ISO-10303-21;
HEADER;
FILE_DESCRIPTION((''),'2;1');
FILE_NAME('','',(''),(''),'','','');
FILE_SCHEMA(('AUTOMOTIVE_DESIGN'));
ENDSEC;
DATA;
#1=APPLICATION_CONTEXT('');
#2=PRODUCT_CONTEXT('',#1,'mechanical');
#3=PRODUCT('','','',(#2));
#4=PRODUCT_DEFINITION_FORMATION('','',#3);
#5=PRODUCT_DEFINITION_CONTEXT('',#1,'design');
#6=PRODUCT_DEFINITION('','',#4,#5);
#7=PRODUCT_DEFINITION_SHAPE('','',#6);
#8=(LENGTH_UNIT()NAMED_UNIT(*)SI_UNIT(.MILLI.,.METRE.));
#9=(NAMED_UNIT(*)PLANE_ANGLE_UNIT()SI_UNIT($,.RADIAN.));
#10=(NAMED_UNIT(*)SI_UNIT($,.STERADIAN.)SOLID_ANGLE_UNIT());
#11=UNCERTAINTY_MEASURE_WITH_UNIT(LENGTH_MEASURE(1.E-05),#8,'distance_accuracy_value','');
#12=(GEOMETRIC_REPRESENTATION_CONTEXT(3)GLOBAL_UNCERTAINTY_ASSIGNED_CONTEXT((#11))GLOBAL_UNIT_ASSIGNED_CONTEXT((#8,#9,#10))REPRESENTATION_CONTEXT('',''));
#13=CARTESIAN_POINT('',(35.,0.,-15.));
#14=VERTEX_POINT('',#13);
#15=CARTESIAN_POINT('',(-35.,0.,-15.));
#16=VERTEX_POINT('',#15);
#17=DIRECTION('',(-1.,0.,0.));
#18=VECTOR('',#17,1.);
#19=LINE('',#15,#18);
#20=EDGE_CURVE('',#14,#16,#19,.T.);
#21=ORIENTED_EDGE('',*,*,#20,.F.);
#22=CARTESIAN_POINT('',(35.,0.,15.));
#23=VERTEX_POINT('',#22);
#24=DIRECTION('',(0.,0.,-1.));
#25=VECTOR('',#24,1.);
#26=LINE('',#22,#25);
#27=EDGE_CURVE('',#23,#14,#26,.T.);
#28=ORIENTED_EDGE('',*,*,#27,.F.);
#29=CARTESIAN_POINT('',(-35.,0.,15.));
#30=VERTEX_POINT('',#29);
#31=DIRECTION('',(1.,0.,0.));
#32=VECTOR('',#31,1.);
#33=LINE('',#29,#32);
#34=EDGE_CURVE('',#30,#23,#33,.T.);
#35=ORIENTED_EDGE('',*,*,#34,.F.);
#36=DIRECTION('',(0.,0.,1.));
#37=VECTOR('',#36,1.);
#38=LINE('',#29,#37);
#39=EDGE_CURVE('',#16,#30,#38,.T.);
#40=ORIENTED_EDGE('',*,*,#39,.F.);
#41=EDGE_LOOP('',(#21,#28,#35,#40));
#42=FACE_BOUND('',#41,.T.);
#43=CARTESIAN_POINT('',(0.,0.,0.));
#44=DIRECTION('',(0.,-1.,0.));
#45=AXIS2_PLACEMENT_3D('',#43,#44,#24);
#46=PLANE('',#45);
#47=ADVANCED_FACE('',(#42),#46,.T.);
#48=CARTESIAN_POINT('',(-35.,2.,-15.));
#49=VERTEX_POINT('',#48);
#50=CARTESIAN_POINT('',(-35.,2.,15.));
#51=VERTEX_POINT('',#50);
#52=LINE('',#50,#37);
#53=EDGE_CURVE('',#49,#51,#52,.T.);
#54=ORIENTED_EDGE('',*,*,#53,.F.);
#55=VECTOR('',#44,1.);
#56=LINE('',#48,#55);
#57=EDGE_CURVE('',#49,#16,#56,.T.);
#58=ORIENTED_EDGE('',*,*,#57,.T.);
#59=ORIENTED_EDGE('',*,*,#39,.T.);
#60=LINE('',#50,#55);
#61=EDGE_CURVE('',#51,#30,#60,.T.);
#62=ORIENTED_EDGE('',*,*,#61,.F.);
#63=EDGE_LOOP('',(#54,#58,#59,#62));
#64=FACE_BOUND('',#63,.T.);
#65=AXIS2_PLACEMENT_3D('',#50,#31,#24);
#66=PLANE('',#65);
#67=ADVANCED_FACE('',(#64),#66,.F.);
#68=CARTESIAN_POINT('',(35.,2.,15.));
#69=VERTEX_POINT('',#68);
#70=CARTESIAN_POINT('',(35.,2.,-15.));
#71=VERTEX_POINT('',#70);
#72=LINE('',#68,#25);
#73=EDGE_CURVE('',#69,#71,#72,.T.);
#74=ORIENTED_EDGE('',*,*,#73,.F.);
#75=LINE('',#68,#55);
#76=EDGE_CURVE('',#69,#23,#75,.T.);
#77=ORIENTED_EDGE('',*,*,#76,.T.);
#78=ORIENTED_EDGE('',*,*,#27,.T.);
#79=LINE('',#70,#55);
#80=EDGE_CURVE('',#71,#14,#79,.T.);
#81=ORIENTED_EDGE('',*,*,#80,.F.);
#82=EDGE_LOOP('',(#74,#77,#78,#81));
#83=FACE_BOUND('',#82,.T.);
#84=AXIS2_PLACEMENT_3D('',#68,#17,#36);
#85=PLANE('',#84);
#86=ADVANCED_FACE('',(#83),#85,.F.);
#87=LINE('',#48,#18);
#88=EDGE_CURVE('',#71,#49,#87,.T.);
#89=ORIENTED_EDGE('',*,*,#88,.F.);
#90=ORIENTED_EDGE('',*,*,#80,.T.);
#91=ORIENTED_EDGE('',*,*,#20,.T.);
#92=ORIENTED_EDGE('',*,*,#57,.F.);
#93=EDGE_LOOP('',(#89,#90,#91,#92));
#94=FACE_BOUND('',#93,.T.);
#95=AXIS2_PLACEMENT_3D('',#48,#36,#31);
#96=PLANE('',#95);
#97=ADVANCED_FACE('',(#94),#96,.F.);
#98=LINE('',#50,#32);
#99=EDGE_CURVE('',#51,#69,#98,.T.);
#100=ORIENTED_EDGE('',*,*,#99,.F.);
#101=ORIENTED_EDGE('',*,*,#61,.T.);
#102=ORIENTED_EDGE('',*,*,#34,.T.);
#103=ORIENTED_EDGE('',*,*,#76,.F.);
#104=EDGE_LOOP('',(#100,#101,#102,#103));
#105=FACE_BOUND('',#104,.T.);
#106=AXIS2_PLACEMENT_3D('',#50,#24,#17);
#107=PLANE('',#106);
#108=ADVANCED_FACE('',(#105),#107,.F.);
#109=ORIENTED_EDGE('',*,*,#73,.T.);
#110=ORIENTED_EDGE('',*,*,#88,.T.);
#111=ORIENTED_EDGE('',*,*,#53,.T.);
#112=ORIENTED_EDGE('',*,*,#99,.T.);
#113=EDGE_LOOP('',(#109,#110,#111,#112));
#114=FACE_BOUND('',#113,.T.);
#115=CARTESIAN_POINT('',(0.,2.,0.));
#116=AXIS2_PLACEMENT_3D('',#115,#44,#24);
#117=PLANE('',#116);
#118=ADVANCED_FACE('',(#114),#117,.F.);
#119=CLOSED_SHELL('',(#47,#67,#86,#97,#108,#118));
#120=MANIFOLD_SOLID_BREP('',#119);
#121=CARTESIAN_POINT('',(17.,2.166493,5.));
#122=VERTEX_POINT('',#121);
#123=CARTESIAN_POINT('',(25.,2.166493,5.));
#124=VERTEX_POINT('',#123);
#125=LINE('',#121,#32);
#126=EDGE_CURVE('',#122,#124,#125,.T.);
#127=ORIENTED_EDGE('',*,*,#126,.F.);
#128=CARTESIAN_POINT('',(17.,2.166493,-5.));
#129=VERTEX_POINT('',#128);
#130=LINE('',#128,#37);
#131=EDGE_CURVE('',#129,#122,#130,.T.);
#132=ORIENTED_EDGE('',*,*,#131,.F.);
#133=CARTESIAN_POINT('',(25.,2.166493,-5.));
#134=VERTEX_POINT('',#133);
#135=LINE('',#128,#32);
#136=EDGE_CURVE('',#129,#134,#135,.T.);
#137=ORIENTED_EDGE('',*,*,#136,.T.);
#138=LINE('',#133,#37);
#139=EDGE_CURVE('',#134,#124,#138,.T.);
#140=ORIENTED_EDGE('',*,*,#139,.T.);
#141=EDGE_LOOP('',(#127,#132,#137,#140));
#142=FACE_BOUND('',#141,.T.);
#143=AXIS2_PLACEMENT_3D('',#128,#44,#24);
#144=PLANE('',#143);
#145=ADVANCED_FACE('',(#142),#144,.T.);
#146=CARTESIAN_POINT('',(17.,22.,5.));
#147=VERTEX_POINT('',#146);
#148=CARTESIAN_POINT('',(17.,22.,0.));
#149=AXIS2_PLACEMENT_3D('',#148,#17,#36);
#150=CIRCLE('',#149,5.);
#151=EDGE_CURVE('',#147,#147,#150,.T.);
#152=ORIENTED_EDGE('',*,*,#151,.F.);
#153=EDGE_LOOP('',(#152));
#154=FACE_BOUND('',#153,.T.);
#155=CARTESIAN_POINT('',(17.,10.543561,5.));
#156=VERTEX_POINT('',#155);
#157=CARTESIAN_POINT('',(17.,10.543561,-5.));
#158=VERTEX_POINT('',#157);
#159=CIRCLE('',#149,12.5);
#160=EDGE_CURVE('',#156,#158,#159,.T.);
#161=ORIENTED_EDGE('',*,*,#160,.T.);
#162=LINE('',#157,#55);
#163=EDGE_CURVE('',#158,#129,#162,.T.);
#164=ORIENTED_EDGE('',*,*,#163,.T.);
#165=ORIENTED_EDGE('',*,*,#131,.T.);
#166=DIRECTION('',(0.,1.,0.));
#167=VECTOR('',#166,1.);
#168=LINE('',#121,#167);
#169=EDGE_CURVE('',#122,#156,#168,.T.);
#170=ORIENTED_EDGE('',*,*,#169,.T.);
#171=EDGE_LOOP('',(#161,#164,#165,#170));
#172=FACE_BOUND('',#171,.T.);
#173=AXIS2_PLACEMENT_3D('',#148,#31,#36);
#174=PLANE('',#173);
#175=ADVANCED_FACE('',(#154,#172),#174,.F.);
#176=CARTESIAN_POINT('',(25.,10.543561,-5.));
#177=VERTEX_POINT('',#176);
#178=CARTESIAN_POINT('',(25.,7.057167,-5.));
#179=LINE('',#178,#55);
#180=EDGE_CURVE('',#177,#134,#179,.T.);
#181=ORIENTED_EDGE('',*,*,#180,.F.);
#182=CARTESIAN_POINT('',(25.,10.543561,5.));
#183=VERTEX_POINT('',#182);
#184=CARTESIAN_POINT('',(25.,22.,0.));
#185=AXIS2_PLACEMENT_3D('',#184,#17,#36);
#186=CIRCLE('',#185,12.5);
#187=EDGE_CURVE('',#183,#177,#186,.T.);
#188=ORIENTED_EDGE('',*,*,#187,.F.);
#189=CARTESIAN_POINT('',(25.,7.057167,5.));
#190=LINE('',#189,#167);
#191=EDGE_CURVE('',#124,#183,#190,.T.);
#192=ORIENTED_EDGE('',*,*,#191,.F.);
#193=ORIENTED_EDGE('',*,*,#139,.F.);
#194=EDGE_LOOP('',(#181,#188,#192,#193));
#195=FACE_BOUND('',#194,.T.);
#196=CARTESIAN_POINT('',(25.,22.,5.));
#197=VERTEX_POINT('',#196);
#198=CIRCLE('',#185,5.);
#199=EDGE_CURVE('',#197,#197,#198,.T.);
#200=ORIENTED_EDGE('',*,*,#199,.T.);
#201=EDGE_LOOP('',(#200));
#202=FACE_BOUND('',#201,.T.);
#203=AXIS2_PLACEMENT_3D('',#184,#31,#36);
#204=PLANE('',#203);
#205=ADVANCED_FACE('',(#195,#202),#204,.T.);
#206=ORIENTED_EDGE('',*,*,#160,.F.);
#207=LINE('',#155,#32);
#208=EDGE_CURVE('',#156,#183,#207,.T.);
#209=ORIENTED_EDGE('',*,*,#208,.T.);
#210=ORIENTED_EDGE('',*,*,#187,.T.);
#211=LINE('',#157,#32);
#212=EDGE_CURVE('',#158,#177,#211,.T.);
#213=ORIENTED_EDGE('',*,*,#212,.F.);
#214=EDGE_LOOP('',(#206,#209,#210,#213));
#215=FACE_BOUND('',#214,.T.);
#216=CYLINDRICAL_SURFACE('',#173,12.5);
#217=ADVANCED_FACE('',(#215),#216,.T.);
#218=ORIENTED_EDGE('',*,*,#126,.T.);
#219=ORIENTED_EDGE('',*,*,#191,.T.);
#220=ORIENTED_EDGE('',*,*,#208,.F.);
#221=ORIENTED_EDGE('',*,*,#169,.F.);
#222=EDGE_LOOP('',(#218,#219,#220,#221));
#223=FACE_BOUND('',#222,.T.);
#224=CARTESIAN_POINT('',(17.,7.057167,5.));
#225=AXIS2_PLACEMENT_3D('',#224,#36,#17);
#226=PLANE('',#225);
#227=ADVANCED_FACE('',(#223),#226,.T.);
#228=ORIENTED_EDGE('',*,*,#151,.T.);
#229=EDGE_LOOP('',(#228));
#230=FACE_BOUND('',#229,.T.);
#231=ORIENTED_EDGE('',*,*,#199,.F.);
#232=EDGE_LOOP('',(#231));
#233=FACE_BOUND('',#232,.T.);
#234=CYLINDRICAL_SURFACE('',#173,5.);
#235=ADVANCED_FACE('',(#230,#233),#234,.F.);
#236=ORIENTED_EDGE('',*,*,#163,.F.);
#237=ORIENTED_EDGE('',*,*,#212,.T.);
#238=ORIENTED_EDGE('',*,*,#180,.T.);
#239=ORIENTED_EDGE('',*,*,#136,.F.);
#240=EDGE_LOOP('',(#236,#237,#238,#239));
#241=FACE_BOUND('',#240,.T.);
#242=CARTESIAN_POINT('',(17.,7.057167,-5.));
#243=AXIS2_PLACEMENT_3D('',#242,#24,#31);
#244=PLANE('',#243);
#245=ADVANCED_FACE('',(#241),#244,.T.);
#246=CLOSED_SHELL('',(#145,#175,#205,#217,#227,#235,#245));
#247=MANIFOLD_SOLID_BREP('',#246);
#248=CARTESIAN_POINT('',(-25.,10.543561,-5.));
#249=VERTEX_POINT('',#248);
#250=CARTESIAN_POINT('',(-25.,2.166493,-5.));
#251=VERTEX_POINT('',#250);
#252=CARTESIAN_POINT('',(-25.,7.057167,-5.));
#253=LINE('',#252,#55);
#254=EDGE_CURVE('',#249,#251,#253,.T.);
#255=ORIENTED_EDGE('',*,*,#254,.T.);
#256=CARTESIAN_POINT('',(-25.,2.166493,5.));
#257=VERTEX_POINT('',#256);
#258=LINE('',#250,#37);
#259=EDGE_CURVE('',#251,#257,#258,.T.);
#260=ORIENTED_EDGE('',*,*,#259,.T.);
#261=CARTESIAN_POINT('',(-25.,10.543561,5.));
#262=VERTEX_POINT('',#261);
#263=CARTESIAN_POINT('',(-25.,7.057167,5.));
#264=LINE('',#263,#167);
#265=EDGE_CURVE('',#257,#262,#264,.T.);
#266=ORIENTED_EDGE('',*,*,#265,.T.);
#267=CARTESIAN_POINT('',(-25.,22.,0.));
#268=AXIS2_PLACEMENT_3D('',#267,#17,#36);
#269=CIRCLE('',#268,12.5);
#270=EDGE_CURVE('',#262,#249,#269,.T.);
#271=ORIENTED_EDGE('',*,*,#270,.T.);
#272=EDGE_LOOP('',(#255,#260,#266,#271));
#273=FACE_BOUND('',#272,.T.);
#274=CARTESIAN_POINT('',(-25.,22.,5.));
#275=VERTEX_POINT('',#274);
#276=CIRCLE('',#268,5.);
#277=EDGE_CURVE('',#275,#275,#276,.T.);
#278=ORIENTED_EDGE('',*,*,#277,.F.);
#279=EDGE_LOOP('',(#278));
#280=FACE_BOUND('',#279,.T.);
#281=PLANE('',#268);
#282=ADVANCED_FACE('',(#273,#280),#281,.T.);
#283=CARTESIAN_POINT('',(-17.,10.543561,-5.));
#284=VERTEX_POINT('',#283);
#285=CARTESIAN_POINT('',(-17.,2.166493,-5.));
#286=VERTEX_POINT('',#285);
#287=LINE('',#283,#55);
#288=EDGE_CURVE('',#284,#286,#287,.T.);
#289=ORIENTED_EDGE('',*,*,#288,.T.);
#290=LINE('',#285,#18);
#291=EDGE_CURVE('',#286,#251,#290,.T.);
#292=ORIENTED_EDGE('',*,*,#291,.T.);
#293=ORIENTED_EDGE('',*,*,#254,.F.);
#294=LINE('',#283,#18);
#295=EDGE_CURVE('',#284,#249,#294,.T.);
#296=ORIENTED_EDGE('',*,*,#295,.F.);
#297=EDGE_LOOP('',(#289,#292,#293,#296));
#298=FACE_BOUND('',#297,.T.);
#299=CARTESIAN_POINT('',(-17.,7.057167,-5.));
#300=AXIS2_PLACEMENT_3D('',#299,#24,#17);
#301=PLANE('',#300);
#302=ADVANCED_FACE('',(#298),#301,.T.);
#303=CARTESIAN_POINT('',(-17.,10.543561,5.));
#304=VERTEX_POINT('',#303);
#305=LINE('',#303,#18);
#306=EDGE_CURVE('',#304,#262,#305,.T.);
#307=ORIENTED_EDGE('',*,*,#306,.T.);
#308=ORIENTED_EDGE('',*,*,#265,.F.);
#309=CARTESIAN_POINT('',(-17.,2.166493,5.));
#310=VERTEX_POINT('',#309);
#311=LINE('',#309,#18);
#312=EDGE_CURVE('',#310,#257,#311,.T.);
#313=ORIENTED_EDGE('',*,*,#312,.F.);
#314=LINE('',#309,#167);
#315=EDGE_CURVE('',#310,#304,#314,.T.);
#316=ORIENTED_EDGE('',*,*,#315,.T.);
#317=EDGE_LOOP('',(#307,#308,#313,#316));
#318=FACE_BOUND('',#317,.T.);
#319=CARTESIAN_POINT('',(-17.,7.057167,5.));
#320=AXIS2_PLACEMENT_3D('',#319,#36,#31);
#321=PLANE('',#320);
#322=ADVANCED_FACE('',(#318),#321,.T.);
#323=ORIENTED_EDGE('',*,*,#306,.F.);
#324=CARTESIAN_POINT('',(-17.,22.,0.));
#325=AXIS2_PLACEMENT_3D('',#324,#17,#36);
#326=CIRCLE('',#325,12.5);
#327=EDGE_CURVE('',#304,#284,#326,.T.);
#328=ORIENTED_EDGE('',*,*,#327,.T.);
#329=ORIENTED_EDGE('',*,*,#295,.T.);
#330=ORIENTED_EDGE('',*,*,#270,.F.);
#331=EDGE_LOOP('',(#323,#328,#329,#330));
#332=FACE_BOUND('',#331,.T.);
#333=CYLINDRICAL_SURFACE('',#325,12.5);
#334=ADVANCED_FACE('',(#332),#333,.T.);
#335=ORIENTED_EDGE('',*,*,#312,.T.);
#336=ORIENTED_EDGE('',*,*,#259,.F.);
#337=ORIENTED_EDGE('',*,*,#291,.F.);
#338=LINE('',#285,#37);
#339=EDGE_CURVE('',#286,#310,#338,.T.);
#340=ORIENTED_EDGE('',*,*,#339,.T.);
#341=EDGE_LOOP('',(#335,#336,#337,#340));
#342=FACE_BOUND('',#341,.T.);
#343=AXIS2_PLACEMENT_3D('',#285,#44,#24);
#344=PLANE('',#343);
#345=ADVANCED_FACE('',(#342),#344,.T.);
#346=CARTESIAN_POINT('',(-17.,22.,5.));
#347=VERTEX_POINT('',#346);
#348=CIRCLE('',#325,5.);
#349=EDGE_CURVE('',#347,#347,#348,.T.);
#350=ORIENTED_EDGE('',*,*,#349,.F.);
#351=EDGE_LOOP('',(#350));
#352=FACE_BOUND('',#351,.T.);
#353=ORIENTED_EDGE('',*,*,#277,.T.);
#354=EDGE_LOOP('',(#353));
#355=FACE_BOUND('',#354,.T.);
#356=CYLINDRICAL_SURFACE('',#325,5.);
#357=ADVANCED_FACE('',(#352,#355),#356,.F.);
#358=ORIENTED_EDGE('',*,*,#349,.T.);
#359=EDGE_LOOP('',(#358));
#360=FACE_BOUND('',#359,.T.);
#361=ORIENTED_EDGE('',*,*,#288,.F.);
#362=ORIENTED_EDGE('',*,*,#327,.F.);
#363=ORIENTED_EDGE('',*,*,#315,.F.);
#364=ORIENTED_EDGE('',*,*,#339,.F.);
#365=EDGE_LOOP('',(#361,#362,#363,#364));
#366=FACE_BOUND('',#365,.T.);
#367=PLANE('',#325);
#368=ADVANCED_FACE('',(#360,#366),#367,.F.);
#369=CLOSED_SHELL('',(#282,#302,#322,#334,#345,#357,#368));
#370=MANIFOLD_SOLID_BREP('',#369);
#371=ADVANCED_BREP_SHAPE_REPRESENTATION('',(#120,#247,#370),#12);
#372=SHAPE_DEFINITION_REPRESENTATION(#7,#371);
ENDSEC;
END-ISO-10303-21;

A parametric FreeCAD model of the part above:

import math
import FreeCAD as App
import Part
import Sketcher

V = App.Vector
Q = App.Units.Quantity

doc = App.newDocument("Part")
params = doc.addObject("Spreadsheet::Sheet", "Params")
for row, (alias, value) in enumerate([
    ("sketch1_width", "70 mm"),
    ("sketch1_height", "30 mm"),
    ("pad1_length", "2 mm"),
    ("sketch2_diameter", "10 mm"),
    ("sketch2_radius", "12.5 mm"),
    ("sketch2_height", "10 mm"),
    ("pad2_length", "8 mm"),
], start=1):
    params.set(f"A{row}", alias)
    params.set(f"B{row}", "=" + value)
    params.setAlias(f"B{row}", alias)

body = doc.addObject("PartDesign::Body", "Body")

sketch1 = body.newObject("Sketcher::SketchObject", "Sketch")
sketch1.AttachmentSupport = (doc.getObject("XZ_Plane"), [""])
sketch1.MapMode = "FlatFace"
sketch1.addGeometry([
    Part.LineSegment(V(-35, -15, 0), V(-35, 15, 0)),
    Part.LineSegment(V(-35, 15, 0), V(35, 15, 0)),
    Part.LineSegment(V(35, 15, 0), V(35, -15, 0)),
    Part.LineSegment(V(35, -15, 0), V(-35, -15, 0)),
], False)
sketch1.addConstraint([
    Sketcher.Constraint("Coincident", 0, 2, 1, 1),
    Sketcher.Constraint("Coincident", 1, 2, 2, 1),
    Sketcher.Constraint("Coincident", 2, 2, 3, 1),
    Sketcher.Constraint("Coincident", 3, 2, 0, 1),
    Sketcher.Constraint("Vertical", 0),
    Sketcher.Constraint("Horizontal", 1),
    Sketcher.Constraint("Vertical", 2),
    Sketcher.Constraint("Horizontal", 3),
    Sketcher.Constraint("Symmetric", 0, 2, 2, 2, -1, 1),
    Sketcher.Constraint("DistanceX", 1, 1, 1, 2, Q("70 mm")),
    Sketcher.Constraint("DistanceY", 0, 1, 0, 2, Q("30 mm")),
])
sketch1.setExpression("Constraints[9]", "Params.sketch1_width")
sketch1.setExpression("Constraints[10]", "Params.sketch1_height")
pad1 = body.newObject("PartDesign::Pad", "Pad")
pad1.Profile = sketch1
pad1.setExpression("Length", "Params.pad1_length")
pad1.Reversed = True
body2 = doc.addObject("PartDesign::Body", "Body001")

sketch2 = body2.newObject("Sketcher::SketchObject", "Sketch001")
sketch2.AttachmentSupport = (doc.getObject("YZ_Plane001"), [""])
sketch2.MapMode = "FlatFace"
sketch2.AttachmentOffset = App.Placement(V(0, 0, -25), App.Rotation())
sketch2.addGeometry([
    Part.LineSegment(V(11, -5, 0), V(2, -5, 0)),
    Part.LineSegment(V(2, -5, 0), V(2, 5, 0)),
    Part.LineSegment(V(2, 5, 0), V(11, 5, 0)),
    Part.ArcOfCircle(Part.Circle(V(22, 0, 0), V(0, 0, 1), 12), math.radians(-156), math.radians(156)),
    Part.Circle(V(22, 0, 0), V(0, 0, 1), 5),
], False)
sketch2.addConstraint([
    Sketcher.Constraint("Coincident", 0, 2, 1, 1),
    Sketcher.Constraint("Coincident", 1, 2, 2, 1),
    Sketcher.Constraint("Coincident", 2, 2, 3, 2),
    Sketcher.Constraint("Coincident", 3, 1, 0, 1),
    Sketcher.Constraint("Horizontal", 0),
    Sketcher.Constraint("Vertical", 1),
    Sketcher.Constraint("Horizontal", 2),
    Sketcher.Constraint("Coincident", 4, 3, 3, 3),
    Sketcher.Constraint("Symmetric", 2, 2, 3, 1, -1),
    Sketcher.Constraint("Diameter", 4, Q("10 mm")),
    Sketcher.Constraint("Radius", 3, Q("12.5 mm")),
    Sketcher.Constraint("DistanceY", 1, 1, 1, 2, Q("10 mm")),
    Sketcher.Constraint("DistanceX", -1, 1, 3, 3, Q("22 mm")),
    Sketcher.Constraint("DistanceX", 0, 2, 0, 1, Q("8.377068 mm")),
])
sketch2.setExpression("Constraints[9]", "Params.sketch2_diameter")
sketch2.setExpression("Constraints[10]", "Params.sketch2_radius")
sketch2.setExpression("Constraints[11]", "Params.sketch2_height")
pad2 = body2.newObject("PartDesign::Pad", "Pad001")
pad2.Profile = sketch2
pad2.setExpression("Length", "Params.pad2_length")
body3 = doc.addObject("PartDesign::Body", "Body002")
doc.recompute()

mirroring = doc.addObject("Part::Mirroring", "Mirroring")
mirroring.Source = body2
mirroring.Base = V(0, 0, 0)
mirroring.Normal = V(-1, 0, 0)
body3.BaseFeature = mirroring
doc.recompute()
mirroring.Visibility = False

doc.recompute()
